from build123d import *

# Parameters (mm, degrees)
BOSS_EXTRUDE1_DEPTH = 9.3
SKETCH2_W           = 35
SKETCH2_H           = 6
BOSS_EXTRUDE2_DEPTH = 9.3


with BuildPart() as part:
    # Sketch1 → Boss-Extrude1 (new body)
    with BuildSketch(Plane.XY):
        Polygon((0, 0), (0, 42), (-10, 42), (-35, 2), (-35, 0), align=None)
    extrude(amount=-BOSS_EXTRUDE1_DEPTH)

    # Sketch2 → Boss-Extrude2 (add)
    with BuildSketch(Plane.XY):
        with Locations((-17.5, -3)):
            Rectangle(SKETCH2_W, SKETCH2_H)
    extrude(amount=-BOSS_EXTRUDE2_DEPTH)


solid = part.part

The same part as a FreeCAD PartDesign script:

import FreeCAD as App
import Part
import Sketcher
from FreeCAD import Vector


def add_polygon(sketch, points):
    """Adds a closed chain of lines whose ends are joined by coincident constraints."""
    first, n = sketch.GeometryCount, len(points)
    for a, b in zip(points, points[1:] + points[:1]):
        sketch.addGeometry(Part.LineSegment(App.Vector(*a, 0), App.Vector(*b, 0)), False)
    for i in range(n):
        sketch.addConstraint(Sketcher.Constraint("Coincident", first + i, 2, first + (i + 1) % n, 1))

doc = App.newDocument("Part")
body = doc.addObject("PartDesign::Body", "Body")

# Sketch on XY plane
sketch1 = body.newObject("Sketcher::SketchObject", "Sketch")
sketch1.AttachmentSupport = (doc.getObject("XY_Plane"), [""])
sketch1.MapMode = "FlatFace"
add_polygon(sketch1, [(0, 0), (0, 42), (-10, 42), (-35, 2), (-35, 0)])  # lines 0-4
sketch1.addConstraint([
    Sketcher.Constraint("Vertical", 0),
    Sketcher.Constraint("Horizontal", 1),
    Sketcher.Constraint("Vertical", 3),
    Sketcher.Constraint("Horizontal", 4),
    Sketcher.Constraint("Coincident", 4, 2, -1, 1),
    Sketcher.Constraint("DistanceX", 1, 2, 1, 1, 10.0),
    Sketcher.Constraint("DistanceX", 4, 1, 4, 2, 35.0),
    Sketcher.Constraint("DistanceY", 0, 1, 0, 2, 42.0),
    Sketcher.Constraint("DistanceY", 3, 2, 3, 1, 2.0),
])
pad1 = body.newObject("PartDesign::Pad", "Pad")
pad1.Profile = sketch1
pad1.Length = 9.3
pad1.Reversed = True

# Sketch on XY plane
sketch2 = body.newObject("Sketcher::SketchObject", "Sketch001")
sketch2.AttachmentSupport = (doc.getObject("XY_Plane"), [""])
sketch2.MapMode = "FlatFace"
add_polygon(sketch2, [(-35, 0), (-35, -6), (0, -6), (0, 0)])  # lines 0-3
sketch2.addConstraint([
    Sketcher.Constraint("Vertical", 0),
    Sketcher.Constraint("Horizontal", 1),
    Sketcher.Constraint("Vertical", 2),
    Sketcher.Constraint("Horizontal", 3),
    Sketcher.Constraint("Coincident", 2, 2, -1, 1),
    Sketcher.Constraint("DistanceX", 1, 1, 1, 2, 35.0),
    Sketcher.Constraint("DistanceY", 0, 2, 0, 1, 6.0),
])
pad2 = body.newObject("PartDesign::Pad", "Pad001")
pad2.Profile = sketch2
pad2.Length = 9.3
pad2.Reversed = True

doc.recompute()
